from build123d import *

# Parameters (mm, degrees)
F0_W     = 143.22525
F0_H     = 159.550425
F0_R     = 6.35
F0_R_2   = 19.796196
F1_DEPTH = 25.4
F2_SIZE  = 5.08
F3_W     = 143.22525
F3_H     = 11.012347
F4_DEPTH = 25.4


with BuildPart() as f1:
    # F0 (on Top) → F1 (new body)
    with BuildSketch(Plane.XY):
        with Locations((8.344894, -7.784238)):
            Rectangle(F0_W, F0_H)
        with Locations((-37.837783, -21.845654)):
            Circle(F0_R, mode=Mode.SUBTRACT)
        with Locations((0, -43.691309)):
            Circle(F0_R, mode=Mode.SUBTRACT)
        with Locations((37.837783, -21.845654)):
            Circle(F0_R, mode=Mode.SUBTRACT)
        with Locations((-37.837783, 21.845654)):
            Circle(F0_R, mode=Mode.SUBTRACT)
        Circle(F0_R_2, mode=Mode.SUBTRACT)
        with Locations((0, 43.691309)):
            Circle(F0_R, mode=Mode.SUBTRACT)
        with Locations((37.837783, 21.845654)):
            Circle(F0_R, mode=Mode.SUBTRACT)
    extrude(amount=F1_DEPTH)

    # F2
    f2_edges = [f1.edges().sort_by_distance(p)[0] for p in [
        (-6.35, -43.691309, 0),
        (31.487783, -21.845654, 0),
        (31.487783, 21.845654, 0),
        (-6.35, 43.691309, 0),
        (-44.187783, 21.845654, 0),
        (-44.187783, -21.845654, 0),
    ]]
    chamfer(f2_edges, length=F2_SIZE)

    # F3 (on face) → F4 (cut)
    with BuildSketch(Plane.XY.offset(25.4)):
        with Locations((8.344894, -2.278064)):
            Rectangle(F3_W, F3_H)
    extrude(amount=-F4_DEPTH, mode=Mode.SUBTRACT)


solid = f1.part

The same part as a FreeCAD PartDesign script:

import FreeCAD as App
import Part
import Sketcher

V = App.Vector
Q = App.Units.Quantity


def edges_at(feature, points):
    """Names of the edges that pass closest to the given points."""
    edges = feature.Shape.Edges
    near = lambda p: min(range(len(edges)), key=lambda i: edges[i].distToShape(Part.Vertex(*p))[0])
    return sorted({f"Edge{near(p) + 1}" for p in points})


def add_polygon(sketch, points):
    """Adds a closed chain of lines whose ends are joined by coincident constraints."""
    first, n = sketch.GeometryCount, len(points)
    for a, b in zip(points, points[1:] + points[:1]):
        sketch.addGeometry(Part.LineSegment(App.Vector(*a, 0), App.Vector(*b, 0)), False)
    for i in range(n):
        sketch.addConstraint(Sketcher.Constraint("Coincident", first + i, 2, first + (i + 1) % n, 1))

doc = App.newDocument("Part")
body = doc.addObject("PartDesign::Body", "Body")
body.AllowCompound = True

# Sketch on XY plane
sketch1 = body.newObject("Sketcher::SketchObject", "Sketch")
sketch1.AttachmentSupport = (doc.getObject("XY_Plane"), [""])
sketch1.MapMode = "FlatFace"
add_polygon(sketch1, [(-63, 72), (-63, -88), (80, -88), (80, 72)])  # lines 0-3
sketch1.addGeometry(Part.Circle(V(-38, -22, 0), V(0, 0, 1), 6), False)  # 4
sketch1.addGeometry(Part.Circle(V(0, -44, 0), V(0, 0, 1), 6), False)  # 5
sketch1.addGeometry(Part.Circle(V(38, -22, 0), V(0, 0, 1), 6), False)  # 6
sketch1.addGeometry(Part.Circle(V(-38, 22, 0), V(0, 0, 1), 6), False)  # 7
sketch1.addGeometry(Part.Circle(V(0, 0, 0), V(0, 0, 1), 20), False)  # 8
sketch1.addGeometry(Part.Circle(V(38, 22, 0), V(0, 0, 1), 6), False)  # 9
sketch1.addGeometry(Part.Circle(V(0, 44, 0), V(0, 0, 1), 6), False)  # 10
sketch1.addConstraint(Sketcher.Constraint("Vertical", 0))
sketch1.addConstraint(Sketcher.Constraint("Horizontal", 1))
sketch1.addConstraint(Sketcher.Constraint("Vertical", 2))
sketch1.addConstraint(Sketcher.Constraint("Horizontal", 3))
sketch1.addConstraint(Sketcher.Constraint("Coincident", 8, 3, -1, 1))
sketch1.addConstraint(Sketcher.Constraint("Equal", 4, 5))
sketch1.addConstraint(Sketcher.Constraint("Equal", 5, 6))
sketch1.addConstraint(Sketcher.Constraint("Equal", 6, 7))
sketch1.addConstraint(Sketcher.Constraint("Equal", 7, 9))
sketch1.addConstraint(Sketcher.Constraint("Equal", 9, 10))
sketch1.addConstraint(Sketcher.Constraint("Symmetric", 6, 3, 7, 3, -1, 1))
sketch1.addConstraint(Sketcher.Constraint("Symmetric", 4, 3, 9, 3, -1, 1))
sketch1.addConstraint(Sketcher.Constraint("Symmetric", 5, 3, 10, 3, -1, 1))
sketch1.addConstraint(Sketcher.Constraint("Symmetric", 4, 3, 6, 3, -2))
sketch1.addConstraint(Sketcher.Constraint("PointOnObject", 5, 3, -2))
sketch1.addConstraint(Sketcher.Constraint("Diameter", 4, Q("0.5 in")))
sketch1.addConstraint(Sketcher.Constraint("Diameter", 8, Q("39.592392 mm")))
sketch1.addConstraint(Sketcher.Constraint("DistanceX", 1, 1, 1, 2, Q("143.22525 mm")))
sketch1.addConstraint(Sketcher.Constraint("DistanceY", 0, 2, 0, 1, Q("159.550425 mm")))
sketch1.addConstraint(Sketcher.Constraint("DistanceY", 5, 3, -1, 1, Q("43.691309 mm")))
sketch1.addConstraint(Sketcher.Constraint("DistanceX", 0, 2, -1, 1, Q("63.267731 mm")))
sketch1.addConstraint(Sketcher.Constraint("DistanceY", 0, 2, -1, 1, Q("87.55945 mm")))
sketch1.addConstraint(Sketcher.Constraint("DistanceY", 9, 3, 2, 2, Q("50.14532 mm")))
sketch1.addConstraint(Sketcher.Constraint("DistanceX", 4, 3, -1, 1, Q("37.837783 mm")))
pad1 = body.newObject("PartDesign::Pad", "Pad")
pad1.Profile = sketch1
pad1.Length = Q("1 in")
doc.recompute()

chamfer = body.newObject("PartDesign::Chamfer", "Chamfer")
chamfer.Base = (pad1, edges_at(pad1, [
    (-6.35, -43.691, 0),
    (31.488, -21.846, 0),
    (31.488, 21.846, 0),
    (-6.35, 43.691, 0),
    (-44.188, 21.846, 0),
    (-44.188, -21.846, 0),
]))
chamfer.Size = Q("0.2 in")

# Sketch on XY plane
sketch2 = body.newObject("Sketcher::SketchObject", "Sketch001")
sketch2.AttachmentSupport = (doc.getObject("XY_Plane"), [""])
sketch2.MapMode = "FlatFace"
sketch2.AttachmentOffset = App.Placement(V(0, 0, 1 * 25.4), App.Rotation())
add_polygon(sketch2, [(-63, 3), (-63, -8), (80, -8), (80, 3)])  # lines 0-3
sketch2.addConstraint(Sketcher.Constraint("Vertical", 0))
sketch2.addConstraint(Sketcher.Constraint("Horizontal", 1))
sketch2.addConstraint(Sketcher.Constraint("Vertical", 2))
sketch2.addConstraint(Sketcher.Constraint("Horizontal", 3))
sketch2.addConstraint(Sketcher.Constraint("DistanceX", 1, 1, 1, 2, Q("143.22525 mm")))
sketch2.addConstraint(Sketcher.Constraint("DistanceY", 0, 2, 0, 1, Q("11.012347 mm")))
sketch2.addConstraint(Sketcher.Constraint("DistanceX", 0, 2, -1, 1, Q("63.267731 mm")))
sketch2.addConstraint(Sketcher.Constraint("DistanceY", -1, 1, 2, 2, Q("3.228109 mm")))
pocket1 = body.newObject("PartDesign::Pocket", "Pocket")
pocket1.Profile = sketch2
pocket1.Length = Q("1 in")

doc.recompute()
